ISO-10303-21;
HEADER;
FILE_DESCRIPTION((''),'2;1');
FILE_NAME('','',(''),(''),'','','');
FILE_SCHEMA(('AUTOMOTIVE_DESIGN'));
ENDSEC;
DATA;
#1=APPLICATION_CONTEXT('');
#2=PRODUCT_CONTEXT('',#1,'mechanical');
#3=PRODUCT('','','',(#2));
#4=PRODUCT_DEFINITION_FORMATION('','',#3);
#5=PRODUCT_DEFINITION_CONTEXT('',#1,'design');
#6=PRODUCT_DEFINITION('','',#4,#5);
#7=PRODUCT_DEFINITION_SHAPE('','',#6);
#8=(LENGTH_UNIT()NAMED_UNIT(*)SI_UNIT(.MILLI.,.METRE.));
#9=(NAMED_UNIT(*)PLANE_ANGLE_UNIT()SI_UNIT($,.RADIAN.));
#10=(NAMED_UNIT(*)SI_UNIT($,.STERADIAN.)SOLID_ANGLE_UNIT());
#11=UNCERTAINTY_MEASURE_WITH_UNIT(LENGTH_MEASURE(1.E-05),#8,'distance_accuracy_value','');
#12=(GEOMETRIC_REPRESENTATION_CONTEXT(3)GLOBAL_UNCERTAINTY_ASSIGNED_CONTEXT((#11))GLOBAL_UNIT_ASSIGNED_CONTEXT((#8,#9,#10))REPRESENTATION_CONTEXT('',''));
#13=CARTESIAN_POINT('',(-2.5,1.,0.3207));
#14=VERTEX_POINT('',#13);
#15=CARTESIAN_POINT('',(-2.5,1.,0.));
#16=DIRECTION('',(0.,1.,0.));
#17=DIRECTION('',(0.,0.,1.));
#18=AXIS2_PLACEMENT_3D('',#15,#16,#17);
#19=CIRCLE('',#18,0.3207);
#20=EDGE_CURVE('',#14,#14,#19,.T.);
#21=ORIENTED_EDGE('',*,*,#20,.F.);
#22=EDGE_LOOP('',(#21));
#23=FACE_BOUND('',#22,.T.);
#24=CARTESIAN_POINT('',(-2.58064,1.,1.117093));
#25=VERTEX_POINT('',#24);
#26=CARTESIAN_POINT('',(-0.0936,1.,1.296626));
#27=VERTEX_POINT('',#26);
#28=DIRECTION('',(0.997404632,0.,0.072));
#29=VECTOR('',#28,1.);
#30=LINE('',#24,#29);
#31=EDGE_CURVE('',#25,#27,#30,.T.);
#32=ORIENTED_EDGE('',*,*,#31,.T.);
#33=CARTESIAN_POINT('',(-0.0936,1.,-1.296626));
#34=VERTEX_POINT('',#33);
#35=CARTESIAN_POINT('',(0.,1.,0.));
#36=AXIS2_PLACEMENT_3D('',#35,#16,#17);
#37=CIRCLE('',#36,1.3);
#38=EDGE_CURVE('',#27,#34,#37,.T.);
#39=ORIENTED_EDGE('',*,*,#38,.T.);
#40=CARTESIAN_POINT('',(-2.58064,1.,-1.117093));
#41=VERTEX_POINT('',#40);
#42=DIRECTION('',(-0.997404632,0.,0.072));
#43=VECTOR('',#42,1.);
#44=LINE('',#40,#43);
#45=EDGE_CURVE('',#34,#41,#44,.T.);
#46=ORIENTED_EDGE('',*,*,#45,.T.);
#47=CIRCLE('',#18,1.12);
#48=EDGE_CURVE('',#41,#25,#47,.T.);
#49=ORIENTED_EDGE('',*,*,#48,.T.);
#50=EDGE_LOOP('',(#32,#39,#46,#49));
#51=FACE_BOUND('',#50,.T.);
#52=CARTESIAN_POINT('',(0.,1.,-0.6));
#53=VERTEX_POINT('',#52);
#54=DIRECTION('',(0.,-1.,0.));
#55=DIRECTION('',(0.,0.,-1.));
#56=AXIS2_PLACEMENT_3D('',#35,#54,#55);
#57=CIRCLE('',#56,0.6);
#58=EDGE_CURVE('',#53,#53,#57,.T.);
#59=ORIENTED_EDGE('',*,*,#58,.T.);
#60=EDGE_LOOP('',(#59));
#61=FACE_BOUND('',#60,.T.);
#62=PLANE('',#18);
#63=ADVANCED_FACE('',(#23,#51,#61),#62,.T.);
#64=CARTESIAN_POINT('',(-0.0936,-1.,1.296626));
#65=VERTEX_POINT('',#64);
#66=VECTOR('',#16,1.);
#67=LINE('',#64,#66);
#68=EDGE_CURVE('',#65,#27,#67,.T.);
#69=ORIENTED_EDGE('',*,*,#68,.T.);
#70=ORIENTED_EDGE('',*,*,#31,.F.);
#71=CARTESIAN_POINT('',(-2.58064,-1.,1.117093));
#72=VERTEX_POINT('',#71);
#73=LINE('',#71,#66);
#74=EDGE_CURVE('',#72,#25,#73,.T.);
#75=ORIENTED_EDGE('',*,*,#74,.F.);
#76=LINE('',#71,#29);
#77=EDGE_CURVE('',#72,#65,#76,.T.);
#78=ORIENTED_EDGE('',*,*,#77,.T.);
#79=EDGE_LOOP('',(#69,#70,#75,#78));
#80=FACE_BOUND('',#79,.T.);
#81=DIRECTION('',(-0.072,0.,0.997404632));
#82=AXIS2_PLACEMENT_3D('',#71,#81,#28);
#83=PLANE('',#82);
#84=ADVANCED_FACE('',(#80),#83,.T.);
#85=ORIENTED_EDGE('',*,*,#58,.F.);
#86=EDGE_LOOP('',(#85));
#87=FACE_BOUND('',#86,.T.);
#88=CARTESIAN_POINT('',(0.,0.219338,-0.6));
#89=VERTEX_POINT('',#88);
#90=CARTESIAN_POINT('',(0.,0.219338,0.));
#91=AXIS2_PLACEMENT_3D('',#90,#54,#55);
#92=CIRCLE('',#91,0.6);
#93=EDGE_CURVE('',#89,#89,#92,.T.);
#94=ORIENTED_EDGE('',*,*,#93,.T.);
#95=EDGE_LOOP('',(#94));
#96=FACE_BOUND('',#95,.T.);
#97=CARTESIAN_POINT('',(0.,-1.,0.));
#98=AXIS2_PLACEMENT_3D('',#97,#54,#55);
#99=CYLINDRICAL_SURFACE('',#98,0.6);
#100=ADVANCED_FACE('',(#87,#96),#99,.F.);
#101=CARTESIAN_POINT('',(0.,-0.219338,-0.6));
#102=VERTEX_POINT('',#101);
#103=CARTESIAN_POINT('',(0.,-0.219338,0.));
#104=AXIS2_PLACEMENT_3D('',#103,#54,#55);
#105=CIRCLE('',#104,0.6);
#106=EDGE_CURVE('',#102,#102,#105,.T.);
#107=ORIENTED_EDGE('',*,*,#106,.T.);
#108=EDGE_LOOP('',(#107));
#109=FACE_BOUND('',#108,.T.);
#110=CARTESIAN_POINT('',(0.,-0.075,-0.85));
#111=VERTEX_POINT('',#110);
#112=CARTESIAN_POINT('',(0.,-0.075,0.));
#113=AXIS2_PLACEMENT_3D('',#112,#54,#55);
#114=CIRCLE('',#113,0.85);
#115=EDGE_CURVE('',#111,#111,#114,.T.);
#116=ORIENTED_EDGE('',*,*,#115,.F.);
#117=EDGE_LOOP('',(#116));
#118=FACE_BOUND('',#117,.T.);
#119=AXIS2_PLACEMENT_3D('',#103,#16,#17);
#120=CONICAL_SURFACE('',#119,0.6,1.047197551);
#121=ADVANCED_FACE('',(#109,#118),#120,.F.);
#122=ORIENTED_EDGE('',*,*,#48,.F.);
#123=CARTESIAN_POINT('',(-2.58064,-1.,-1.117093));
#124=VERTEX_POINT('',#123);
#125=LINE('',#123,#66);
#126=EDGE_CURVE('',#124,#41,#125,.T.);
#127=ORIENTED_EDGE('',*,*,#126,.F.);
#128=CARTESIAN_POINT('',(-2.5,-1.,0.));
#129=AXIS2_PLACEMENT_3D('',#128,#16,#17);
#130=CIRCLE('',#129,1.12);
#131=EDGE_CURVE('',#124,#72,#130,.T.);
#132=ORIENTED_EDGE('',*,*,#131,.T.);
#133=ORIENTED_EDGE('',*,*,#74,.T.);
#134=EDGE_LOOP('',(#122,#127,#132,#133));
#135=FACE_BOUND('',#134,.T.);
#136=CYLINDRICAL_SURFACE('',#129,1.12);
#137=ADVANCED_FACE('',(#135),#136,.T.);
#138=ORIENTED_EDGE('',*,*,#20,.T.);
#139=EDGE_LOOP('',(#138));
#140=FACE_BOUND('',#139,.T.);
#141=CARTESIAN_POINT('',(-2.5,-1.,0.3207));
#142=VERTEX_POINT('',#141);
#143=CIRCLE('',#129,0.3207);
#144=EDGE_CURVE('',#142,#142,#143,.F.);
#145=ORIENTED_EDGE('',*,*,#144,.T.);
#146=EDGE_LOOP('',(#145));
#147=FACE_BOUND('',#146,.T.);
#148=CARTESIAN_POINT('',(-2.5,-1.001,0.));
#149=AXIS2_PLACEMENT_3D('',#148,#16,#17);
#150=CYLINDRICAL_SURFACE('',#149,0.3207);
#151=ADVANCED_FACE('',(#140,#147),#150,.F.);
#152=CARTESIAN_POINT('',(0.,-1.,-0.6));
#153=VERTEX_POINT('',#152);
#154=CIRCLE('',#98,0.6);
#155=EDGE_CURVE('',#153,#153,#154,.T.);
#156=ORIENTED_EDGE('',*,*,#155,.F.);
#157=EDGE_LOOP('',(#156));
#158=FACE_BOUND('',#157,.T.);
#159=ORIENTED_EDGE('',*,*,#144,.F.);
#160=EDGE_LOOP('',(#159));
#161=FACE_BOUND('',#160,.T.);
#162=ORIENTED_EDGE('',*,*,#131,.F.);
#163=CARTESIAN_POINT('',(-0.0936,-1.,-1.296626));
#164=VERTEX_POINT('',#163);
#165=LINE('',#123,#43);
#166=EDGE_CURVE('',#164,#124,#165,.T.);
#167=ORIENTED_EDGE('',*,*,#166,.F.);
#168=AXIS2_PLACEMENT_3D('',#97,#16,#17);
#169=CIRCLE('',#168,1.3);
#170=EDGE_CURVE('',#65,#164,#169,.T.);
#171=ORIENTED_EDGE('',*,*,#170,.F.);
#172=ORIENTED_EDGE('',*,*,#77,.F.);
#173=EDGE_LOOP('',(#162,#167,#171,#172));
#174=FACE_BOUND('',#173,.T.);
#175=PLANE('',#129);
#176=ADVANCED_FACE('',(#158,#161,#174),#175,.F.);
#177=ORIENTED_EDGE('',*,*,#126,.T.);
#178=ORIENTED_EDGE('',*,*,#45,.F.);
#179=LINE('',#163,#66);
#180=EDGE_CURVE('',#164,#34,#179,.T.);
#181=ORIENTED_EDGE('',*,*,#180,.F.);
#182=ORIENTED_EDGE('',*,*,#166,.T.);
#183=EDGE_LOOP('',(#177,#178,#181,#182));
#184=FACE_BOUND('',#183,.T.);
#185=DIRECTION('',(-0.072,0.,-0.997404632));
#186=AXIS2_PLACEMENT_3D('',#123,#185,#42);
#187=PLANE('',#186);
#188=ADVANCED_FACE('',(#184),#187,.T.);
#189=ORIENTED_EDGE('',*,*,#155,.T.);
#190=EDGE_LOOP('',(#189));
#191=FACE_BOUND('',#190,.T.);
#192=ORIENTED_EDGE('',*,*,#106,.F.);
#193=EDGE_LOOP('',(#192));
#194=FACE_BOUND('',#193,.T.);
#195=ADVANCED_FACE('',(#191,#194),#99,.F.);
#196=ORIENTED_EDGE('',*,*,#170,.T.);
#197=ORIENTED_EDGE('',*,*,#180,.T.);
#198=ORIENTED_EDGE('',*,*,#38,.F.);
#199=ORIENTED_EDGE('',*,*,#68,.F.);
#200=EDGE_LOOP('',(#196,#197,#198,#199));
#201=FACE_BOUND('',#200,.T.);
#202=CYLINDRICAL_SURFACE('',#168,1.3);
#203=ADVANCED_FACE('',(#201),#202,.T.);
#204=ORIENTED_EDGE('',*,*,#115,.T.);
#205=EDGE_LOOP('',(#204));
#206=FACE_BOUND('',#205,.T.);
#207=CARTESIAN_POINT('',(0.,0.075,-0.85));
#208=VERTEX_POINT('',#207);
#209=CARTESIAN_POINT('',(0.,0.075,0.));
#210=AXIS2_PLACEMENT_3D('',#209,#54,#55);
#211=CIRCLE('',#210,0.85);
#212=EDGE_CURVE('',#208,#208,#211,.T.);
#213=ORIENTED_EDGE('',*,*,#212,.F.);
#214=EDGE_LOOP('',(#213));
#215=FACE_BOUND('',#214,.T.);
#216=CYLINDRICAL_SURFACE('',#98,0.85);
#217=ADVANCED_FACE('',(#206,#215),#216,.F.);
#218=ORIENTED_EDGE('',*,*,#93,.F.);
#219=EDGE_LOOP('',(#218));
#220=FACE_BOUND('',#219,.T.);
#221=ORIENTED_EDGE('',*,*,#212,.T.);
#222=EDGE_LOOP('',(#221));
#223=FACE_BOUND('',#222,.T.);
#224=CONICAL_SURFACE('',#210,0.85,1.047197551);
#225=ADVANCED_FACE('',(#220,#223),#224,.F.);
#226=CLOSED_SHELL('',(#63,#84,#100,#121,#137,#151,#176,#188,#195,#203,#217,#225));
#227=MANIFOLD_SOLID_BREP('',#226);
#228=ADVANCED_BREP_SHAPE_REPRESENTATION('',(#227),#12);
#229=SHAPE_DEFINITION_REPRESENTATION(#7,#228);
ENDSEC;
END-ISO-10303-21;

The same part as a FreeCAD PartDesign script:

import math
import FreeCAD as App
import Part
import Sketcher
Q = App.Units.Quantity


def add_polygon(sketch, points):
    """Adds a closed chain of lines whose ends are joined by coincident constraints."""
    first, n = sketch.GeometryCount, len(points)
    for a, b in zip(points, points[1:] + points[:1]):
        sketch.addGeometry(Part.LineSegment(App.Vector(*a, 0), App.Vector(*b, 0)), False)
    for i in range(n):
        sketch.addConstraint(Sketcher.Constraint("Coincident", first + i, 2, first + (i + 1) % n, 1))

doc = App.newDocument("Part")
params = doc.addObject("Spreadsheet::Sheet", "Params")
for row, (alias, value) in enumerate([
    ("sketch1_radius", "1.3 mm"),
    ("sketch1_radius2", "1.12 mm"),
    ("pad1_length", "1 mm"),
    ("pad1_length2", "1 mm"),
    ("sketch2_height", "2 mm"),
    ("sketch2_width", "0.6 mm"),
    ("sketch2_height2", "0.15 mm"),
    ("groove_angle", "360 deg"),
], start=1):
    params.set(f"A{row}", alias)
    params.set(f"B{row}", "=" + value)
    params.setAlias(f"B{row}", alias)

body = doc.addObject("PartDesign::Body", "Body")

# Sketch on XZ plane
sketch1 = body.newObject("Sketcher::SketchObject", "Sketch")
sketch1.AttachmentSupport = (doc.getObject("XZ_Plane"), [""])
sketch1.MapMode = "FlatFace"
sketch1.addGeometry(Part.LineSegment(App.Vector(-0.1, -1.3, 0), App.Vector(-2.6, -1.1, 0)), False)
sketch1.addGeometry(Part.ArcOfCircle(Part.Circle(App.Vector(-2.5, 0, 0), App.Vector(0, 0, 1), 1.1), math.radians(94), math.radians(266)), False)
sketch1.addGeometry(Part.LineSegment(App.Vector(-2.6, 1.1, 0), App.Vector(-0.1, 1.3, 0)), False)
sketch1.addGeometry(Part.ArcOfCircle(Part.Circle(App.Vector(0, 0, 0), App.Vector(0, 0, 1), 1.3), math.radians(-94), math.radians(94)), False)
sketch1.addConstraint(Sketcher.Constraint("Tangent", 0, 2, 1, 2))
sketch1.addConstraint(Sketcher.Constraint("Tangent", 1, 1, 2, 1))
sketch1.addConstraint(Sketcher.Constraint("Tangent", 2, 2, 3, 2))
sketch1.addConstraint(Sketcher.Constraint("Tangent", 3, 1, 0, 1))
sketch1.addConstraint(Sketcher.Constraint("Coincident", 3, 3, -1, 1))
sketch1.addConstraint(Sketcher.Constraint("PointOnObject", 1, 3, -1))
sketch1.addConstraint(Sketcher.Constraint("Radius", 3, Q("1.3 mm")))
sketch1.addConstraint(Sketcher.Constraint("Radius", 1, Q("1.12 mm")))
sketch1.addConstraint(Sketcher.Constraint("DistanceX", 1, 3, -1, 1, Q("2.5 mm")))
sketch1.setExpression("Constraints[6]", "Params.sketch1_radius")
sketch1.setExpression("Constraints[7]", "Params.sketch1_radius2")
pad1 = body.newObject("PartDesign::Pad", "Pad")
pad1.Profile = sketch1
pad1.Type = "TwoLengths"
pad1.setExpression("Length", "Params.pad1_length")
pad1.setExpression("Length2", "Params.pad1_length2")
pad1.Reversed = True

# Sketch on XY plane
sketch2 = body.newObject("Sketcher::SketchObject", "Sketch001")
sketch2.AttachmentSupport = (doc.getObject("XY_Plane"), [""])
sketch2.MapMode = "FlatFace"
add_polygon(sketch2, [(0.85, 0.07), (0.6, 0.22), (0.6, 1), (0, 1), (0, -1), (0.6, -1), (0.6, -0.22), (0.85, -0.07)])  # lines 0-7
sketch2.addConstraint(Sketcher.Constraint("Vertical", 1))
sketch2.addConstraint(Sketcher.Constraint("Horizontal", 2))
sketch2.addConstraint(Sketcher.Constraint("Vertical", 3))
sketch2.addConstraint(Sketcher.Constraint("Horizontal", 4))
sketch2.addConstraint(Sketcher.Constraint("Vertical", 5))
sketch2.addConstraint(Sketcher.Constraint("Vertical", 7))
sketch2.addConstraint(Sketcher.Constraint("Symmetric", 2, 2, 3, 2, -1, 1))
sketch2.addConstraint(Sketcher.Constraint("Symmetric", 0, 2, 5, 2, -1))
sketch2.addConstraint(Sketcher.Constraint("Equal", 0, 6))
sketch2.addConstraint(Sketcher.Constraint("DistanceY", 3, 2, 3, 1, Q("2 mm")))
sketch2.addConstraint(Sketcher.Constraint("Angle", 0, Q("150 deg")))
sketch2.addConstraint(Sketcher.Constraint("DistanceX", 2, 2, 2, 1, Q("0.6 mm")))
sketch2.addConstraint(Sketcher.Constraint("DistanceY", 7, 1, 7, 2, Q("0.15 mm")))
sketch2.addConstraint(Sketcher.Constraint("DistanceX", -1, 1, 6, 2, Q("0.85 mm")))
sketch2.setExpression("Constraints[17]", "Params.sketch2_height")
sketch2.setExpression("Constraints[19]", "Params.sketch2_width")
sketch2.setExpression("Constraints[20]", "Params.sketch2_height2")
groove = body.newObject("PartDesign::Groove", "Groove")
groove.Profile = sketch2
groove.ReferenceAxis = (sketch2, ["V_Axis"])
groove.setExpression("Angle", "Params.groove_angle")

# Sketch on XZ plane
sketch3 = body.newObject("Sketcher::SketchObject", "Sketch002")
sketch3.AttachmentSupport = (doc.getObject("XZ_Plane"), [""])
sketch3.MapMode = "FlatFace"
sketch3.AttachmentOffset = App.Placement(App.Vector(0, 0, -1), App.Rotation())
sketch3.addGeometry(Part.Circle(App.Vector(-2.5, 0, 0), App.Vector(0, 0, 1), 0.32), False)
sketch3.addConstraint(Sketcher.Constraint("PointOnObject", 0, 3, -1))
sketch3.addConstraint(Sketcher.Constraint("Diameter", 0, Q("0.6414 mm")))
sketch3.addConstraint(Sketcher.Constraint("DistanceX", 0, 3, -1, 1, Q("2.5 mm")))
pocket1 = body.newObject("PartDesign::Pocket", "Pocket")
pocket1.Profile = sketch3
pocket1.Type = "UpToFirst"
pocket1.Reversed = True

doc.recompute()
